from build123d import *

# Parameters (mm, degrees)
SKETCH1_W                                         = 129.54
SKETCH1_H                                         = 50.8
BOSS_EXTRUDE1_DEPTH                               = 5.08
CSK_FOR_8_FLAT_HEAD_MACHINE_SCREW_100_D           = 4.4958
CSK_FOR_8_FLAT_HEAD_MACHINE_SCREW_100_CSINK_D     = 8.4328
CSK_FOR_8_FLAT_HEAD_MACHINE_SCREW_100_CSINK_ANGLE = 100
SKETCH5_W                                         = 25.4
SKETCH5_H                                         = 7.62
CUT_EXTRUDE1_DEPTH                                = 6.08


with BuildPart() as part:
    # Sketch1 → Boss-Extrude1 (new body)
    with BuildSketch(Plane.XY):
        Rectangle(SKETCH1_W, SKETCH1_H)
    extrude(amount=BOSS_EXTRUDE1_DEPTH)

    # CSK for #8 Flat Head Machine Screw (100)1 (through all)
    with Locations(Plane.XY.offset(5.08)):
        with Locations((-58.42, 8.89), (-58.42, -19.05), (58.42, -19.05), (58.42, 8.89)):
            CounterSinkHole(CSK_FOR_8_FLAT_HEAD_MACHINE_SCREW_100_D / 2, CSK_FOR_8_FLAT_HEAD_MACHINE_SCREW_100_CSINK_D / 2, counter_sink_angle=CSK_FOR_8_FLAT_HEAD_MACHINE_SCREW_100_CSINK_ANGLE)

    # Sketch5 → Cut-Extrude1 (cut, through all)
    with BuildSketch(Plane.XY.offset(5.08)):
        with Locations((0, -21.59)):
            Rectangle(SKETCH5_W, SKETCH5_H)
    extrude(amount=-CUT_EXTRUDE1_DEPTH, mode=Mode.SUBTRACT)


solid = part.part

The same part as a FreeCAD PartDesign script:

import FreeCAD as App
import Part
import Sketcher
Q = App.Units.Quantity


def add_polygon(sketch, points):
    """Adds a closed chain of lines whose ends are joined by coincident constraints."""
    first, n = sketch.GeometryCount, len(points)
    for a, b in zip(points, points[1:] + points[:1]):
        sketch.addGeometry(Part.LineSegment(App.Vector(*a, 0), App.Vector(*b, 0)), False)
    for i in range(n):
        sketch.addConstraint(Sketcher.Constraint("Coincident", first + i, 2, first + (i + 1) % n, 1))

doc = App.newDocument("Part")
body = doc.addObject("PartDesign::Body", "Body")

# Sketch on XY plane
sketch1 = body.newObject("Sketcher::SketchObject", "Sketch")
sketch1.AttachmentSupport = (doc.getObject("XY_Plane"), [""])
sketch1.MapMode = "FlatFace"
add_polygon(sketch1, [(-65, 25), (-65, -25), (65, -25), (65, 25)])  # lines 0-3
sketch1.addConstraint([
    Sketcher.Constraint("Vertical", 0),
    Sketcher.Constraint("Horizontal", 1),
    Sketcher.Constraint("Vertical", 2),
    Sketcher.Constraint("Horizontal", 3),
    Sketcher.Constraint("Symmetric", 0, 2, 2, 2, -1, 1),
    Sketcher.Constraint("DistanceY", 0, 2, 0, 1, Q("2 in")),
    Sketcher.Constraint("DistanceX", 1, 1, 1, 2, Q("5.1 in")),
])
pad1 = body.newObject("PartDesign::Pad", "Pad")
pad1.Profile = sketch1
pad1.Length = Q("0.2 in")

# Sketch on XY plane
sketch2 = body.newObject("Sketcher::SketchObject", "Sketch001")
sketch2.AttachmentSupport = (doc.getObject("XY_Plane"), [""])
sketch2.MapMode = "FlatFace"
sketch2.AttachmentOffset = App.Placement(App.Vector(0, 0, 0.2 * 25.4), App.Rotation())
sketch2.addGeometry([
    Part.Circle(App.Vector(-58.4, 8.9, 0), App.Vector(0, 0, 1), 2.2),
    Part.Circle(App.Vector(-58.4, -19.1, 0), App.Vector(0, 0, 1), 2.2),
    Part.Circle(App.Vector(58.4, -19.1, 0), App.Vector(0, 0, 1), 2.2),
    Part.Circle(App.Vector(58.4, 8.9, 0), App.Vector(0, 0, 1), 2.2),
], False)
sketch2.addConstraint([
    Sketcher.Constraint("Equal", 0, 1),
    Sketcher.Constraint("Equal", 1, 2),
    Sketcher.Constraint("Equal", 2, 3),
    Sketcher.Constraint("Symmetric", 1, 3, 2, 3, -2),
    Sketcher.Constraint("Symmetric", 0, 3, 3, 3, -2),
    Sketcher.Constraint("Vertical", 0, 3, 1, 3),
    Sketcher.Constraint("Diameter", 0, Q("0.177 in")),
    Sketcher.Constraint("DistanceX", 0, 3, -1, 1, Q("2.3 in")),
    Sketcher.Constraint("DistanceY", 1, 3, 0, 3, Q("1.1 in")),
    Sketcher.Constraint("DistanceY", -1, 1, 0, 3, Q("0.35 in")),
])
doc.recompute()
hole = body.newObject("PartDesign::Hole", "Hole")
hole.Profile = sketch2
hole.ThreadType = "None"
hole.Diameter = Q("0.177 in")
hole.DepthType = "ThroughAll"
hole.HoleCutType = "Countersink"
hole.HoleCutDiameter = Q("0.332 in")
hole.HoleCutCountersinkAngle = 100

# Sketch on XY plane
sketch3 = body.newObject("Sketcher::SketchObject", "Sketch002")
sketch3.AttachmentSupport = (doc.getObject("XY_Plane"), [""])
sketch3.MapMode = "FlatFace"
sketch3.AttachmentOffset = App.Placement(App.Vector(0, 0, 0.2 * 25.4), App.Rotation())
add_polygon(sketch3, [(-13, -18), (-13, -25), (13, -25), (13, -18)])  # lines 0-3
sketch3.addConstraint([
    Sketcher.Constraint("Vertical", 0),
    Sketcher.Constraint("Horizontal", 1),
    Sketcher.Constraint("Vertical", 2),
    Sketcher.Constraint("Horizontal", 3),
    Sketcher.Constraint("DistanceX", 1, 1, 1, 2, Q("1 in")),
    Sketcher.Constraint("DistanceY", 0, 2, 0, 1, Q("0.3 in")),
    Sketcher.Constraint("DistanceY", 0, 2, -1, 1, Q("1 in")),
    Sketcher.Constraint("DistanceX", 0, 2, -1, 1, Q("0.5 in")),
])
pocket1 = body.newObject("PartDesign::Pocket", "Pocket")
pocket1.Profile = sketch3
pocket1.Type = "ThroughAll"

doc.recompute()
